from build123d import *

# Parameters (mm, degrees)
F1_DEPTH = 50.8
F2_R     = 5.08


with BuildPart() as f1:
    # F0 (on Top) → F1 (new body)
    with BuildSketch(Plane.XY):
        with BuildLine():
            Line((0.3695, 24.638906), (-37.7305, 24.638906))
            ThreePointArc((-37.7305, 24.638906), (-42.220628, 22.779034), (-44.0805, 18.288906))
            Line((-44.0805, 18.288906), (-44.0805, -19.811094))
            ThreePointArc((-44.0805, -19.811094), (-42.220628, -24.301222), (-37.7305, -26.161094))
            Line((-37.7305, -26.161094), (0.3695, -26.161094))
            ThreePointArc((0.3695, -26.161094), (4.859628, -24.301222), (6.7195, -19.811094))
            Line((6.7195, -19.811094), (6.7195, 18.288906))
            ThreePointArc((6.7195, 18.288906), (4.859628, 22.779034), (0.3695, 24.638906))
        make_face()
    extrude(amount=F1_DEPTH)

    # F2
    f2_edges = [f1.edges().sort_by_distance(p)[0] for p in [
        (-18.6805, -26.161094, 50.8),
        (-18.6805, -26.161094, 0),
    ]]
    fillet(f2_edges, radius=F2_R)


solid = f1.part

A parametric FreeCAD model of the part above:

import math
import FreeCAD as App
import Part
import Sketcher
from FreeCAD import Vector
Q = App.Units.Quantity


def edges_at(feature, points):
    """Names of the edges that pass closest to the given points."""
    edges = feature.Shape.Edges
    near = lambda p: min(range(len(edges)), key=lambda i: edges[i].distToShape(Part.Vertex(*p))[0])
    return sorted({f"Edge{near(p) + 1}" for p in points})

doc = App.newDocument("Part")
body = doc.addObject("PartDesign::Body", "Body")

# Sketch on XY plane
sketch1 = doc.addObject("Sketcher::SketchObject", "Sketch")
body.addObject(sketch1)
sketch1.AttachmentSupport = (doc.XY_Plane, [""])
sketch1.MapMode = "FlatFace"
sketch1.addGeometry([
    Part.LineSegment(Vector(0.3695, 24.638906, 0), Vector(-37.7305, 24.638906, 0)),  # 0
    Part.ArcOfCircle(Part.Circle(Vector(-37.7305, 18.288906, 0), Vector(0, 0, 1), 6.35), math.radians(90.000002), math.radians(179.999998)),  # 1
    Part.LineSegment(Vector(-44.0805, 18.288906, 0), Vector(-44.0805, -19.811094, 0)),  # 2
    Part.ArcOfCircle(Part.Circle(Vector(-37.7305, -19.811094, 0), Vector(0, 0, 1), 6.35), math.radians(-179.999998), math.radians(-90.000002)),  # 3
    Part.LineSegment(Vector(-37.7305, -26.161094, 0), Vector(0.3695, -26.161094, 0)),  # 4
    Part.ArcOfCircle(Part.Circle(Vector(0.3695, -19.811094, 0), Vector(0, 0, 1), 6.35), math.radians(-89.999998), math.radians(-0.000002)),  # 5
    Part.LineSegment(Vector(6.7195, -19.811094, 0), Vector(6.7195, 18.288906, 0)),  # 6
    Part.ArcOfCircle(Part.Circle(Vector(0.3695, 18.288906, 0), Vector(0, 0, 1), 6.35), math.radians(0.000002), math.radians(89.999998)),  # 7
], False)
sketch1.addConstraint([
    Sketcher.Constraint("Tangent", 0, 2, 1, 1),
    Sketcher.Constraint("Tangent", 1, 2, 2, 1),
    Sketcher.Constraint("Tangent", 2, 2, 3, 1),
    Sketcher.Constraint("Tangent", 3, 2, 4, 1),
    Sketcher.Constraint("Tangent", 4, 2, 5, 1),
    Sketcher.Constraint("Tangent", 5, 2, 6, 1),
    Sketcher.Constraint("Tangent", 6, 2, 7, 1),
    Sketcher.Constraint("Tangent", 7, 2, 0, 1),
    Sketcher.Constraint("Horizontal", 0),
    Sketcher.Constraint("Vertical", 2),
    Sketcher.Constraint("Horizontal", 4),
    Sketcher.Constraint("Vertical", 6),
    Sketcher.Constraint("Equal", 1, 3),
    Sketcher.Constraint("Equal", 3, 5),
    Sketcher.Constraint("Equal", 5, 7),
    Sketcher.Constraint("Equal", 4, 2),
    Sketcher.Constraint("Radius", 1, Q("0.25 in")),
    Sketcher.Constraint("DistanceX", 0, 2, 0, 1, Q("1.5 in")),
    Sketcher.Constraint("DistanceX", 1, 3, -1, 1, Q("37.7305 mm")),
    Sketcher.Constraint("DistanceY", -1, 1, 1, 3, Q("18.288906 mm")),
])
pad1 = doc.addObject("PartDesign::Pad", "Pad")
body.addObject(pad1)
pad1.Profile = sketch1
pad1.Length = Q("2 in")
doc.recompute()

fillet = doc.addObject("PartDesign::Fillet", "Fillet")
body.addObject(fillet)
fillet.Base = (pad1, edges_at(pad1, [(-18.68, -26.161, 50.8), (-18.68, -26.161, 0)]))
fillet.Radius = Q("0.2 in")

doc.recompute()
